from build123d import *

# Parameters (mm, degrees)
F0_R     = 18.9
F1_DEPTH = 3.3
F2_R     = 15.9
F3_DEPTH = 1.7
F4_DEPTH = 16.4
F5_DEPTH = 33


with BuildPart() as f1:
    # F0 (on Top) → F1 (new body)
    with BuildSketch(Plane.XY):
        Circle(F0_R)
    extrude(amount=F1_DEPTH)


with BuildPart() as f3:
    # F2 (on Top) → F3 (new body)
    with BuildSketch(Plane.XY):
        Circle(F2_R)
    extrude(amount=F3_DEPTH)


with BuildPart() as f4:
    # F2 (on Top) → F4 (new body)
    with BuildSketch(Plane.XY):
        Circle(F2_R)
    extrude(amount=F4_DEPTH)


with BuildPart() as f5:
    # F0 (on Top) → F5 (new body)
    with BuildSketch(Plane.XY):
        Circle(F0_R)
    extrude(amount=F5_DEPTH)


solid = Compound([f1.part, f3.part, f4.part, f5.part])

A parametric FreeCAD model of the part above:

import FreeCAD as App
import Part
import Sketcher
Q = App.Units.Quantity

doc = App.newDocument("Part")
body = doc.addObject("PartDesign::Body", "Body")

sketch1 = body.newObject("Sketcher::SketchObject", "Sketch")
sketch1.AttachmentSupport = (doc.getObject("XY_Plane"), [""])
sketch1.MapMode = "FlatFace"
sketch1.addGeometry(Part.Circle(App.Vector(0, 0, 0), App.Vector(0, 0, 1), 19), False)
sketch1.addConstraint(Sketcher.Constraint("Coincident", 0, 3, -1, 1))
sketch1.addConstraint(Sketcher.Constraint("Diameter", 0, Q("37.8 mm")))
pad1 = body.newObject("PartDesign::Pad", "Pad")
pad1.Profile = sketch1
pad1.Length = 3.3
body2 = doc.addObject("PartDesign::Body", "Body001")

sketch2 = body2.newObject("Sketcher::SketchObject", "Sketch001")
sketch2.AttachmentSupport = (doc.getObject("XY_Plane001"), [""])
sketch2.MapMode = "FlatFace"
sketch2.addGeometry(Part.Circle(App.Vector(0, 0, 0), App.Vector(0, 0, 1), 16), False)
sketch2.addConstraint(Sketcher.Constraint("Coincident", 0, 3, -1, 1))
sketch2.addConstraint(Sketcher.Constraint("Diameter", 0, Q("31.8 mm")))
pad2 = body2.newObject("PartDesign::Pad", "Pad001")
pad2.Profile = sketch2
pad2.Length = 1.7
body3 = doc.addObject("PartDesign::Body", "Body002")

sketch3 = body3.newObject("Sketcher::SketchObject", "Sketch002")
sketch3.AttachmentSupport = (doc.getObject("XY_Plane002"), [""])
sketch3.MapMode = "FlatFace"
sketch3.addGeometry(Part.Circle(App.Vector(0, 0, 0), App.Vector(0, 0, 1), 16), False)
sketch3.addConstraint(Sketcher.Constraint("Coincident", 0, 3, -1, 1))
sketch3.addConstraint(Sketcher.Constraint("Diameter", 0, Q("31.8 mm")))
pad3 = body3.newObject("PartDesign::Pad", "Pad002")
pad3.Profile = sketch3
pad3.Length = 16.4
body4 = doc.addObject("PartDesign::Body", "Body003")

sketch4 = body4.newObject("Sketcher::SketchObject", "Sketch003")
sketch4.AttachmentSupport = (doc.getObject("XY_Plane003"), [""])
sketch4.MapMode = "FlatFace"
sketch4.addGeometry(Part.Circle(App.Vector(0, 0, 0), App.Vector(0, 0, 1), 19), False)
sketch4.addConstraint(Sketcher.Constraint("Coincident", 0, 3, -1, 1))
sketch4.addConstraint(Sketcher.Constraint("Diameter", 0, Q("37.8 mm")))
pad4 = body4.newObject("PartDesign::Pad", "Pad003")
pad4.Profile = sketch4
pad4.Length = 33

doc.recompute()
